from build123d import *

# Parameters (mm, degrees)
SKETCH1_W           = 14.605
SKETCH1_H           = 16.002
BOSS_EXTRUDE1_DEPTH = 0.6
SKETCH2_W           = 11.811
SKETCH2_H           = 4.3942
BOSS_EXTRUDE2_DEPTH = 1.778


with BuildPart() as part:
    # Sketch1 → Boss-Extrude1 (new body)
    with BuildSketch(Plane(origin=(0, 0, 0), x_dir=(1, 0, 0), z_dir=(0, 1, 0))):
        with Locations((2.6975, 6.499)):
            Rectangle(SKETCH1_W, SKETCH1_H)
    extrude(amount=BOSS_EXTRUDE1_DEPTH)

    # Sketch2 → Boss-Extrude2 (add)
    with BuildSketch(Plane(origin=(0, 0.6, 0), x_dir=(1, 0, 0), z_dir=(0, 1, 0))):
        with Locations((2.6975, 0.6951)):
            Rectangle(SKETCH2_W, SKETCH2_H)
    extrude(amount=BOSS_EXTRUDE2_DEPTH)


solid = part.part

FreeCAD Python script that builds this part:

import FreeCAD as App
import Part
import Sketcher

V = App.Vector
Q = App.Units.Quantity

doc = App.newDocument("Part")
params = doc.addObject("Spreadsheet::Sheet", "Params")
for row, (alias, value) in enumerate([
    ("sketch1_height", "0.63 in"),
    ("sketch1_width", "0.575 in"),
    ("pad1_length", "0.6 mm"),
    ("sketch2_width", "0.465 in"),
    ("sketch2_height", "0.173 in"),
    ("pad2_length", "0.07 in"),
], start=1):
    params.set(f"A{row}", alias)
    params.set(f"B{row}", "=" + value)
    params.setAlias(f"B{row}", alias)

body = doc.addObject("PartDesign::Body", "Body")

# Sketch on XZ plane
sketch1 = body.newObject("Sketcher::SketchObject", "Sketch")
sketch1.AttachmentSupport = (doc.getObject("XZ_Plane"), [""])
sketch1.MapMode = "FlatFace"
sketch1.addGeometry(Part.LineSegment(V(-4.605, -14.5, 0), V(-4.605, 1.502, 0)), False)
sketch1.addGeometry(Part.LineSegment(V(-4.605, 1.502, 0), V(10, 1.502, 0)), False)
sketch1.addGeometry(Part.LineSegment(V(10, 1.502, 0), V(10, -14.5, 0)), False)
sketch1.addGeometry(Part.LineSegment(V(10, -14.5, 0), V(-4.605, -14.5, 0)), False)
sketch1.addConstraint(Sketcher.Constraint("Coincident", 0, 2, 1, 1))
sketch1.addConstraint(Sketcher.Constraint("Coincident", 1, 2, 2, 1))
sketch1.addConstraint(Sketcher.Constraint("Coincident", 2, 2, 3, 1))
sketch1.addConstraint(Sketcher.Constraint("Coincident", 3, 2, 0, 1))
sketch1.addConstraint(Sketcher.Constraint("Vertical", 0))
sketch1.addConstraint(Sketcher.Constraint("Horizontal", 1))
sketch1.addConstraint(Sketcher.Constraint("Vertical", 2))
sketch1.addConstraint(Sketcher.Constraint("Horizontal", 3))
sketch1.addConstraint(Sketcher.Constraint("DistanceY", 0, 1, 0, 2, Q("0.63 in")))
sketch1.addConstraint(Sketcher.Constraint("DistanceX", 1, 1, 1, 2, Q("0.575 in")))
sketch1.addConstraint(Sketcher.Constraint("DistanceX", 0, 2, -1, 1, 4.605))
sketch1.addConstraint(Sketcher.Constraint("DistanceY", -1, 1, 0, 2, 1.502))
sketch1.setExpression("Constraints[8]", "Params.sketch1_height")
sketch1.setExpression("Constraints[9]", "Params.sketch1_width")
pad1 = body.newObject("PartDesign::Pad", "Pad")
pad1.Profile = sketch1
pad1.setExpression("Length", "Params.pad1_length")
pad1.Reversed = True

# Sketch on XZ plane
sketch2 = body.newObject("Sketcher::SketchObject", "Sketch001")
sketch2.AttachmentSupport = (doc.getObject("XZ_Plane"), [""])
sketch2.MapMode = "FlatFace"
sketch2.AttachmentOffset = App.Placement(V(0, 0, -0.6), App.Rotation())
sketch2.addGeometry(Part.LineSegment(V(-3.208, -2.8922, 0), V(-3.208, 1.502, 0)), False)
sketch2.addGeometry(Part.LineSegment(V(-3.208, 1.502, 0), V(8.603, 1.502, 0)), False)
sketch2.addGeometry(Part.LineSegment(V(8.603, 1.502, 0), V(8.603, -2.8922, 0)), False)
sketch2.addGeometry(Part.LineSegment(V(8.603, -2.8922, 0), V(-3.208, -2.8922, 0)), False)
sketch2.addConstraint(Sketcher.Constraint("Coincident", 0, 2, 1, 1))
sketch2.addConstraint(Sketcher.Constraint("Coincident", 1, 2, 2, 1))
sketch2.addConstraint(Sketcher.Constraint("Coincident", 2, 2, 3, 1))
sketch2.addConstraint(Sketcher.Constraint("Coincident", 3, 2, 0, 1))
sketch2.addConstraint(Sketcher.Constraint("Vertical", 0))
sketch2.addConstraint(Sketcher.Constraint("Horizontal", 1))
sketch2.addConstraint(Sketcher.Constraint("Vertical", 2))
sketch2.addConstraint(Sketcher.Constraint("Horizontal", 3))
sketch2.addConstraint(Sketcher.Constraint("DistanceX", 1, 1, 1, 2, Q("0.465 in")))
sketch2.addConstraint(Sketcher.Constraint("DistanceY", 0, 1, 0, 2, Q("0.173 in")))
sketch2.addConstraint(Sketcher.Constraint("DistanceX", 0, 2, -1, 1, 3.208))
sketch2.addConstraint(Sketcher.Constraint("DistanceY", -1, 1, 0, 2, 1.502))
sketch2.setExpression("Constraints[8]", "Params.sketch2_width")
sketch2.setExpression("Constraints[9]", "Params.sketch2_height")
pad2 = body.newObject("PartDesign::Pad", "Pad001")
pad2.Profile = sketch2
pad2.setExpression("Length", "Params.pad2_length")
pad2.Reversed = True

doc.recompute()
